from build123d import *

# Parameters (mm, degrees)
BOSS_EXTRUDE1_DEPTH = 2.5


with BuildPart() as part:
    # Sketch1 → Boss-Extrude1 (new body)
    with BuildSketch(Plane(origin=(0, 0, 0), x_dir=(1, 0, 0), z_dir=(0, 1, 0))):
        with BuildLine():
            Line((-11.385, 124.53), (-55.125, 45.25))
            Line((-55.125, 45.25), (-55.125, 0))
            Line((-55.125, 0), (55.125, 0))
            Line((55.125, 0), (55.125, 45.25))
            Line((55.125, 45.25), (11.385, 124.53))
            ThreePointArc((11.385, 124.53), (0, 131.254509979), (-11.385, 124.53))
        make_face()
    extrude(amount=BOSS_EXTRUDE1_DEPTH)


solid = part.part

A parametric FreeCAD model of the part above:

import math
import FreeCAD as App
import Part
import Sketcher
from FreeCAD import Vector
Q = App.Units.Quantity

doc = App.newDocument("Part")
body = doc.addObject("PartDesign::Body", "Body")

# Sketch on XZ plane
sketch1 = doc.addObject("Sketcher::SketchObject", "Sketch")
body.addObject(sketch1)
sketch1.AttachmentSupport = (doc.XZ_Plane, [""])
sketch1.MapMode = "FlatFace"
sketch1.addGeometry(Part.LineSegment(Vector(-11, -125, 0), Vector(-55, -45, 0)), False)
sketch1.addGeometry(Part.LineSegment(Vector(-55, -45, 0), Vector(-55, 0, 0)), False)
sketch1.addGeometry(Part.LineSegment(Vector(-55, 0, 0), Vector(55, 0, 0)), False)
sketch1.addGeometry(Part.LineSegment(Vector(55, 0, 0), Vector(55, -45, 0)), False)
sketch1.addGeometry(Part.LineSegment(Vector(55, -45, 0), Vector(11, -125, 0)), False)
sketch1.addGeometry(Part.ArcOfCircle(Part.Circle(Vector(0, -118, 0), Vector(0, 0, 1), 13), math.radians(-151), math.radians(-29)), False)
sketch1.addConstraint(Sketcher.Constraint("Coincident", 0, 2, 1, 1))
sketch1.addConstraint(Sketcher.Constraint("Coincident", 1, 2, 2, 1))
sketch1.addConstraint(Sketcher.Constraint("Coincident", 2, 2, 3, 1))
sketch1.addConstraint(Sketcher.Constraint("Coincident", 3, 2, 4, 1))
sketch1.addConstraint(Sketcher.Constraint("Coincident", 4, 2, 5, 2))
sketch1.addConstraint(Sketcher.Constraint("Coincident", 5, 1, 0, 1))
sketch1.addConstraint(Sketcher.Constraint("Vertical", 1))
sketch1.addConstraint(Sketcher.Constraint("Horizontal", 2))
sketch1.addConstraint(Sketcher.Constraint("Vertical", 3))
sketch1.addConstraint(Sketcher.Constraint("Symmetric", 1, 2, 2, 2, -1, 1))
sketch1.addConstraint(Sketcher.Constraint("Symmetric", 4, 2, 5, 1, -2))
sketch1.addConstraint(Sketcher.Constraint("Horizontal", 0, 2, 3, 2))
sketch1.addConstraint(Sketcher.Constraint("Radius", 5, Q("13 mm")))
sketch1.addConstraint(Sketcher.Constraint("DistanceX", 2, 1, 2, 2, Q("110.25 mm")))
sketch1.addConstraint(Sketcher.Constraint("DistanceY", 1, 1, 1, 2, Q("45.25 mm")))
sketch1.addConstraint(Sketcher.Constraint("DistanceY", 4, 2, -1, 1, Q("124.53 mm")))
sketch1.addConstraint(Sketcher.Constraint("DistanceX", 4, 2, 3, 2, Q("43.74 mm")))
pad1 = doc.addObject("PartDesign::Pad", "Pad")
body.addObject(pad1)
pad1.Profile = sketch1
pad1.Length = 2.5
pad1.Reversed = True

doc.recompute()
